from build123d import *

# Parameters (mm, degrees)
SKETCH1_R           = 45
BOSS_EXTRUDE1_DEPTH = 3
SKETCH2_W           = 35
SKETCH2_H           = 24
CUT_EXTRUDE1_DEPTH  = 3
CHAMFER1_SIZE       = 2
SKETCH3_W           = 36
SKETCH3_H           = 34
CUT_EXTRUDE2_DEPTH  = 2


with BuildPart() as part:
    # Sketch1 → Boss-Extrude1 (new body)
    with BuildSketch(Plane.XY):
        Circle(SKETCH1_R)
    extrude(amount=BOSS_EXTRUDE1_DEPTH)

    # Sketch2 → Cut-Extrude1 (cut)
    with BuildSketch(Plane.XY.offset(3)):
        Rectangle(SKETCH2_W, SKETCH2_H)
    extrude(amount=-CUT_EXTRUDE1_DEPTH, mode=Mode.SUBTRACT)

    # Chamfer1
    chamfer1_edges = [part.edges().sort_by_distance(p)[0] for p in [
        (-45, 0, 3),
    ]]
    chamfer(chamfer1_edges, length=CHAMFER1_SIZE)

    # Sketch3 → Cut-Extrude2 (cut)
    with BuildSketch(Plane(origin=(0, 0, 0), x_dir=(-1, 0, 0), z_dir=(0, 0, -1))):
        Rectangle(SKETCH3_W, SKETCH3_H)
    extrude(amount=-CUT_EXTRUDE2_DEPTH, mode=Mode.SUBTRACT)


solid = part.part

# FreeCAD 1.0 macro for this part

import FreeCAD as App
import Part
import Sketcher


def edges_at(feature, points):
    """Names of the edges that pass closest to the given points."""
    edges = feature.Shape.Edges
    near = lambda p: min(range(len(edges)), key=lambda i: edges[i].distToShape(Part.Vertex(*p))[0])
    return sorted({f"Edge{near(p) + 1}" for p in points})


def add_polygon(sketch, points):
    """Adds a closed chain of lines whose ends are joined by coincident constraints."""
    first, n = sketch.GeometryCount, len(points)
    for a, b in zip(points, points[1:] + points[:1]):
        sketch.addGeometry(Part.LineSegment(App.Vector(*a, 0), App.Vector(*b, 0)), False)
    for i in range(n):
        sketch.addConstraint(Sketcher.Constraint("Coincident", first + i, 2, first + (i + 1) % n, 1))

doc = App.newDocument("Part")
body = doc.addObject("PartDesign::Body", "Body")

sketch1 = body.newObject("Sketcher::SketchObject", "Sketch")
sketch1.AttachmentSupport = (doc.getObject("XY_Plane"), [""])
sketch1.MapMode = "FlatFace"
sketch1.addGeometry(Part.Circle(App.Vector(0, 0, 0), App.Vector(0, 0, 1), 45), False)
sketch1.addConstraint(Sketcher.Constraint("Coincident", 0, 3, -1, 1))
sketch1.addConstraint(Sketcher.Constraint("Diameter", 0, 90.0))
pad1 = body.newObject("PartDesign::Pad", "Pad")
pad1.Profile = sketch1
pad1.Length = 3

sketch2 = body.newObject("Sketcher::SketchObject", "Sketch001")
sketch2.AttachmentSupport = (doc.getObject("XY_Plane"), [""])
sketch2.MapMode = "FlatFace"
sketch2.AttachmentOffset = App.Placement(App.Vector(0, 0, 3), App.Rotation())
add_polygon(sketch2, [(-17.5, 12), (-17.5, -12), (17.5, -12), (17.5, 12)])
sketch2.addConstraint(Sketcher.Constraint("Vertical", 0))
sketch2.addConstraint(Sketcher.Constraint("Horizontal", 1))
sketch2.addConstraint(Sketcher.Constraint("Vertical", 2))
sketch2.addConstraint(Sketcher.Constraint("Horizontal", 3))
sketch2.addConstraint(Sketcher.Constraint("Symmetric", 0, 2, 2, 2, -1, 1))
sketch2.addConstraint(Sketcher.Constraint("DistanceX", 1, 1, 1, 2, 35.0))
sketch2.addConstraint(Sketcher.Constraint("DistanceY", 0, 2, 0, 1, 24.0))
pocket1 = body.newObject("PartDesign::Pocket", "Pocket")
pocket1.Profile = sketch2
pocket1.Length = 3
doc.recompute()

chamfer = body.newObject("PartDesign::Chamfer", "Chamfer")
chamfer.Base = (pocket1, edges_at(pocket1, [(-45, 0, 3)]))
chamfer.Size = 2

sketch3 = body.newObject("Sketcher::SketchObject", "Sketch002")
sketch3.AttachmentSupport = (doc.getObject("XY_Plane"), [""])
sketch3.MapMode = "FlatFace"
add_polygon(sketch3, [(18, 17), (18, -17), (-18, -17), (-18, 17)])
sketch3.addConstraint(Sketcher.Constraint("Vertical", 0))
sketch3.addConstraint(Sketcher.Constraint("Horizontal", 1))
sketch3.addConstraint(Sketcher.Constraint("Vertical", 2))
sketch3.addConstraint(Sketcher.Constraint("Horizontal", 3))
sketch3.addConstraint(Sketcher.Constraint("Symmetric", 0, 2, 2, 2, -1, 1))
sketch3.addConstraint(Sketcher.Constraint("DistanceX", 1, 2, 1, 1, 36.0))
sketch3.addConstraint(Sketcher.Constraint("DistanceY", 0, 2, 0, 1, 34.0))
pocket2 = body.newObject("PartDesign::Pocket", "Pocket001")
pocket2.Profile = sketch3
pocket2.Length = 2
pocket2.Reversed = True

doc.recompute()
